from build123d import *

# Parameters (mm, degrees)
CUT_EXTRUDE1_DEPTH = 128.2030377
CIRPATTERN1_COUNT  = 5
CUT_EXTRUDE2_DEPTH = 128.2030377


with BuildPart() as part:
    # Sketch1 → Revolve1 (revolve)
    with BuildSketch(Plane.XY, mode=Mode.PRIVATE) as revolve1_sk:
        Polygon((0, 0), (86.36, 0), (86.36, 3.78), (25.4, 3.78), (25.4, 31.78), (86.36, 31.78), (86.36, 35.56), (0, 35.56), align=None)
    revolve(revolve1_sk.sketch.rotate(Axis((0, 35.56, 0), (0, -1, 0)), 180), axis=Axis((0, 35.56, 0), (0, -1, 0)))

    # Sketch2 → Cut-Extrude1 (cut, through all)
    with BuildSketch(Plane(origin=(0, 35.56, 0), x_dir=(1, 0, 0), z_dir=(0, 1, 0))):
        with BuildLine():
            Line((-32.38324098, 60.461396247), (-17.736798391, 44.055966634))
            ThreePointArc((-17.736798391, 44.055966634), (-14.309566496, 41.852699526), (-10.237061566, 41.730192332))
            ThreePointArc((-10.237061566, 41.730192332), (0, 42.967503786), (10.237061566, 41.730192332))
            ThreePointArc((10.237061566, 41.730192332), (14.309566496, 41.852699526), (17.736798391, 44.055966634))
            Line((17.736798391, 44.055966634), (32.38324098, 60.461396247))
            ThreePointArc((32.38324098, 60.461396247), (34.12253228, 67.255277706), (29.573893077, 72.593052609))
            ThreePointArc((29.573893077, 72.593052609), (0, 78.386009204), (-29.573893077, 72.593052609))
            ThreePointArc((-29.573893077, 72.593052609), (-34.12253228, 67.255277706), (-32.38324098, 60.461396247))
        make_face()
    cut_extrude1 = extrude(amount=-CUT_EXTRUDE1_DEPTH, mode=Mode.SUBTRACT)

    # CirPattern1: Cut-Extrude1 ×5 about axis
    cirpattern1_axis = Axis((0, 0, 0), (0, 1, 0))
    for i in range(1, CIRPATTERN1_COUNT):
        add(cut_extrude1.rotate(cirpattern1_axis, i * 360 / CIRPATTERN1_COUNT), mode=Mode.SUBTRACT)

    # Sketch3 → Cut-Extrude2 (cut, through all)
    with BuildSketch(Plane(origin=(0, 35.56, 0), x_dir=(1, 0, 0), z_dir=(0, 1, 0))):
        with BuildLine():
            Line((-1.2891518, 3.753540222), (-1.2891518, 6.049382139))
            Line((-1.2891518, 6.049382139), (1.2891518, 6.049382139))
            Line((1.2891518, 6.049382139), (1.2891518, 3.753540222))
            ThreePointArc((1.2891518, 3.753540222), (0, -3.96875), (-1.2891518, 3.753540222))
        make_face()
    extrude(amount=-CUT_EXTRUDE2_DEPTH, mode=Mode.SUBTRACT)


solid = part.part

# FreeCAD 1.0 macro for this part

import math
import FreeCAD as App
import Part
import Sketcher
Q = App.Units.Quantity

doc = App.newDocument("Part")
body = doc.addObject("PartDesign::Body", "Body")

# Sketch on XY plane
sketch1 = body.newObject("Sketcher::SketchObject", "Sketch")
sketch1.AttachmentSupport = (doc.getObject("XY_Plane"), [""])
sketch1.MapMode = "FlatFace"
sketch1.addGeometry([
    Part.LineSegment(App.Vector(0, 0, 0), App.Vector(86.4, 0, 0)),  # 0
    Part.LineSegment(App.Vector(86.4, 0, 0), App.Vector(86.4, 3.8, 0)),  # 1
    Part.LineSegment(App.Vector(86.4, 3.8, 0), App.Vector(25.4, 3.8, 0)),  # 2
    Part.LineSegment(App.Vector(25.4, 3.8, 0), App.Vector(25.4, 31.8, 0)),  # 3
    Part.LineSegment(App.Vector(25.4, 31.8, 0), App.Vector(86.4, 31.8, 0)),  # 4
    Part.LineSegment(App.Vector(86.4, 31.8, 0), App.Vector(86.4, 35.6, 0)),  # 5
    Part.LineSegment(App.Vector(86.4, 35.6, 0), App.Vector(0, 35.6, 0)),  # 6
    Part.LineSegment(App.Vector(0, 35.6, 0), App.Vector(0, 0, 0)),  # 7
], False)
sketch1.addConstraint([
    Sketcher.Constraint("Coincident", 0, 2, 1, 1),
    Sketcher.Constraint("Coincident", 1, 2, 2, 1),
    Sketcher.Constraint("Coincident", 2, 2, 3, 1),
    Sketcher.Constraint("Coincident", 3, 2, 4, 1),
    Sketcher.Constraint("Coincident", 4, 2, 5, 1),
    Sketcher.Constraint("Coincident", 5, 2, 6, 1),
    Sketcher.Constraint("Coincident", 6, 2, 7, 1),
    Sketcher.Constraint("Coincident", 7, 2, 0, 1),
    Sketcher.Constraint("Horizontal", 0),
    Sketcher.Constraint("Vertical", 1),
    Sketcher.Constraint("Horizontal", 2),
    Sketcher.Constraint("Vertical", 3),
    Sketcher.Constraint("Horizontal", 4),
    Sketcher.Constraint("Vertical", 5),
    Sketcher.Constraint("Horizontal", 6),
    Sketcher.Constraint("Vertical", 7),
    Sketcher.Constraint("Coincident", 7, 2, -1, 1),
    Sketcher.Constraint("Vertical", 1, 2, 4, 2),
    Sketcher.Constraint("Equal", 1, 5),
    Sketcher.Constraint("DistanceX", 0, 1, 0, 2, Q("3.4 in")),
    Sketcher.Constraint("DistanceX", 2, 2, 2, 1, Q("2.4 in")),
    Sketcher.Constraint("DistanceY", 7, 2, 7, 1, Q("1.4 in")),
    Sketcher.Constraint("DistanceY", 1, 1, 1, 2, Q("3.78 mm")),
])
revolution = body.newObject("PartDesign::Revolution", "Revolution")
revolution.Profile = sketch1
revolution.ReferenceAxis = (sketch1, ["V_Axis"])
revolution.Angle = 360

# Sketch on XZ plane
sketch2 = body.newObject("Sketcher::SketchObject", "Sketch001")
sketch2.AttachmentSupport = (doc.getObject("XZ_Plane"), [""])
sketch2.MapMode = "FlatFace"
sketch2.AttachmentOffset = App.Placement(App.Vector(0, 0, -1.4 * 25.4), App.Rotation())
sketch2.addGeometry([
    Part.LineSegment(App.Vector(-32, -60, 0), App.Vector(-18, -44, 0)),  # 0
    Part.ArcOfCircle(Part.Circle(App.Vector(-12, -49, 0), App.Vector(0, 0, 1), 8), math.radians(76), math.radians(138)),  # 1
    Part.ArcOfCircle(Part.Circle(App.Vector(0, 0, 0), App.Vector(0, 0, 1), 43), math.radians(-104), math.radians(-76)),  # 2
    Part.ArcOfCircle(Part.Circle(App.Vector(12, -49, 0), App.Vector(0, 0, 1), 8), math.radians(42), math.radians(104)),  # 3
    Part.LineSegment(App.Vector(18, -44, 0), App.Vector(32, -60, 0)),  # 4
    Part.ArcOfCircle(Part.Circle(App.Vector(27, -66, 0), App.Vector(0, 0, 1), 8), math.radians(-68), math.radians(42)),  # 5
    Part.ArcOfCircle(Part.Circle(App.Vector(0, 0, 0), App.Vector(0, 0, 1), 78), math.radians(-112), math.radians(-68)),  # 6
    Part.ArcOfCircle(Part.Circle(App.Vector(-27, -66, 0), App.Vector(0, 0, 1), 8), math.radians(138), math.radians(248)),  # 7
], False)
sketch2.addConstraint([
    Sketcher.Constraint("Tangent", 0, 2, 1, 2),
    Sketcher.Constraint("Tangent", 1, 1, 2, 1),
    Sketcher.Constraint("Tangent", 2, 2, 3, 2),
    Sketcher.Constraint("Tangent", 3, 1, 4, 1),
    Sketcher.Constraint("Tangent", 4, 2, 5, 2),
    Sketcher.Constraint("Tangent", 5, 1, 6, 2),
    Sketcher.Constraint("Tangent", 6, 1, 7, 2),
    Sketcher.Constraint("Tangent", 7, 1, 0, 1),
    Sketcher.Constraint("Coincident", 2, 3, -1, 1),
    Sketcher.Constraint("Coincident", 6, 3, -1, 1),
    Sketcher.Constraint("Equal", 1, 3),
    Sketcher.Constraint("Equal", 3, 5),
    Sketcher.Constraint("Equal", 5, 7),
    Sketcher.Constraint("Symmetric", 0, 2, 3, 1, -2),
    Sketcher.Constraint("Radius", 1, Q("0.3 in")),
    Sketcher.Constraint("Radius", 6, Q("78.386009 mm")),
    Sketcher.Constraint("Radius", 2, Q("42.967504 mm")),
    Sketcher.Constraint("DistanceX", 0, 2, -1, 1, Q("17.736798 mm")),
    Sketcher.Constraint("DistanceY", 7, 3, 1, 1, Q("23.806001 mm")),
])
pocket1 = body.newObject("PartDesign::Pocket", "Pocket")
pocket1.Profile = sketch2
pocket1.Type = "ThroughAll"
pocket1.Reversed = True
doc.recompute()

polarpattern = body.newObject("PartDesign::PolarPattern", "PolarPattern")
polarpattern.Originals = [pocket1]
polarpattern.Axis = (doc.getObject("Y_Axis"), [""])
polarpattern.Angle = 360
polarpattern.Occurrences = 5
body.Tip = polarpattern

# Sketch on XZ plane
sketch3 = body.newObject("Sketcher::SketchObject", "Sketch002")
sketch3.AttachmentSupport = (doc.getObject("XZ_Plane"), [""])
sketch3.MapMode = "FlatFace"
sketch3.AttachmentOffset = App.Placement(App.Vector(0, 0, -1.4 * 25.4), App.Rotation())
sketch3.addGeometry([
    Part.LineSegment(App.Vector(-1.3, -6, 0), App.Vector(-1.3, -3.8, 0)),
    Part.ArcOfCircle(Part.Circle(App.Vector(0, 0, 0), App.Vector(0, 0, 1), 4), math.radians(-71), math.radians(251)),
    Part.LineSegment(App.Vector(1.3, -3.8, 0), App.Vector(1.3, -6, 0)),
    Part.LineSegment(App.Vector(1.3, -6, 0), App.Vector(-1.3, -6, 0)),
], False)
sketch3.addConstraint([
    Sketcher.Constraint("Coincident", 0, 2, 1, 2),
    Sketcher.Constraint("Coincident", 1, 1, 2, 1),
    Sketcher.Constraint("Coincident", 2, 2, 3, 1),
    Sketcher.Constraint("Coincident", 3, 2, 0, 1),
    Sketcher.Constraint("Vertical", 0),
    Sketcher.Constraint("Vertical", 2),
    Sketcher.Constraint("Horizontal", 3),
    Sketcher.Constraint("Coincident", 1, 3, -1, 1),
    Sketcher.Constraint("Horizontal", 0, 2, 1, 1),
    Sketcher.Constraint("Radius", 1, Q("0.15625 in")),
    Sketcher.Constraint("DistanceY", 0, 1, 0, 2, Q("2.295842 mm")),
    Sketcher.Constraint("DistanceX", 3, 2, 3, 1, Q("2.578304 mm")),
])
pocket2 = body.newObject("PartDesign::Pocket", "Pocket001")
pocket2.Profile = sketch3
pocket2.Type = "ThroughAll"
pocket2.Reversed = True

doc.recompute()
